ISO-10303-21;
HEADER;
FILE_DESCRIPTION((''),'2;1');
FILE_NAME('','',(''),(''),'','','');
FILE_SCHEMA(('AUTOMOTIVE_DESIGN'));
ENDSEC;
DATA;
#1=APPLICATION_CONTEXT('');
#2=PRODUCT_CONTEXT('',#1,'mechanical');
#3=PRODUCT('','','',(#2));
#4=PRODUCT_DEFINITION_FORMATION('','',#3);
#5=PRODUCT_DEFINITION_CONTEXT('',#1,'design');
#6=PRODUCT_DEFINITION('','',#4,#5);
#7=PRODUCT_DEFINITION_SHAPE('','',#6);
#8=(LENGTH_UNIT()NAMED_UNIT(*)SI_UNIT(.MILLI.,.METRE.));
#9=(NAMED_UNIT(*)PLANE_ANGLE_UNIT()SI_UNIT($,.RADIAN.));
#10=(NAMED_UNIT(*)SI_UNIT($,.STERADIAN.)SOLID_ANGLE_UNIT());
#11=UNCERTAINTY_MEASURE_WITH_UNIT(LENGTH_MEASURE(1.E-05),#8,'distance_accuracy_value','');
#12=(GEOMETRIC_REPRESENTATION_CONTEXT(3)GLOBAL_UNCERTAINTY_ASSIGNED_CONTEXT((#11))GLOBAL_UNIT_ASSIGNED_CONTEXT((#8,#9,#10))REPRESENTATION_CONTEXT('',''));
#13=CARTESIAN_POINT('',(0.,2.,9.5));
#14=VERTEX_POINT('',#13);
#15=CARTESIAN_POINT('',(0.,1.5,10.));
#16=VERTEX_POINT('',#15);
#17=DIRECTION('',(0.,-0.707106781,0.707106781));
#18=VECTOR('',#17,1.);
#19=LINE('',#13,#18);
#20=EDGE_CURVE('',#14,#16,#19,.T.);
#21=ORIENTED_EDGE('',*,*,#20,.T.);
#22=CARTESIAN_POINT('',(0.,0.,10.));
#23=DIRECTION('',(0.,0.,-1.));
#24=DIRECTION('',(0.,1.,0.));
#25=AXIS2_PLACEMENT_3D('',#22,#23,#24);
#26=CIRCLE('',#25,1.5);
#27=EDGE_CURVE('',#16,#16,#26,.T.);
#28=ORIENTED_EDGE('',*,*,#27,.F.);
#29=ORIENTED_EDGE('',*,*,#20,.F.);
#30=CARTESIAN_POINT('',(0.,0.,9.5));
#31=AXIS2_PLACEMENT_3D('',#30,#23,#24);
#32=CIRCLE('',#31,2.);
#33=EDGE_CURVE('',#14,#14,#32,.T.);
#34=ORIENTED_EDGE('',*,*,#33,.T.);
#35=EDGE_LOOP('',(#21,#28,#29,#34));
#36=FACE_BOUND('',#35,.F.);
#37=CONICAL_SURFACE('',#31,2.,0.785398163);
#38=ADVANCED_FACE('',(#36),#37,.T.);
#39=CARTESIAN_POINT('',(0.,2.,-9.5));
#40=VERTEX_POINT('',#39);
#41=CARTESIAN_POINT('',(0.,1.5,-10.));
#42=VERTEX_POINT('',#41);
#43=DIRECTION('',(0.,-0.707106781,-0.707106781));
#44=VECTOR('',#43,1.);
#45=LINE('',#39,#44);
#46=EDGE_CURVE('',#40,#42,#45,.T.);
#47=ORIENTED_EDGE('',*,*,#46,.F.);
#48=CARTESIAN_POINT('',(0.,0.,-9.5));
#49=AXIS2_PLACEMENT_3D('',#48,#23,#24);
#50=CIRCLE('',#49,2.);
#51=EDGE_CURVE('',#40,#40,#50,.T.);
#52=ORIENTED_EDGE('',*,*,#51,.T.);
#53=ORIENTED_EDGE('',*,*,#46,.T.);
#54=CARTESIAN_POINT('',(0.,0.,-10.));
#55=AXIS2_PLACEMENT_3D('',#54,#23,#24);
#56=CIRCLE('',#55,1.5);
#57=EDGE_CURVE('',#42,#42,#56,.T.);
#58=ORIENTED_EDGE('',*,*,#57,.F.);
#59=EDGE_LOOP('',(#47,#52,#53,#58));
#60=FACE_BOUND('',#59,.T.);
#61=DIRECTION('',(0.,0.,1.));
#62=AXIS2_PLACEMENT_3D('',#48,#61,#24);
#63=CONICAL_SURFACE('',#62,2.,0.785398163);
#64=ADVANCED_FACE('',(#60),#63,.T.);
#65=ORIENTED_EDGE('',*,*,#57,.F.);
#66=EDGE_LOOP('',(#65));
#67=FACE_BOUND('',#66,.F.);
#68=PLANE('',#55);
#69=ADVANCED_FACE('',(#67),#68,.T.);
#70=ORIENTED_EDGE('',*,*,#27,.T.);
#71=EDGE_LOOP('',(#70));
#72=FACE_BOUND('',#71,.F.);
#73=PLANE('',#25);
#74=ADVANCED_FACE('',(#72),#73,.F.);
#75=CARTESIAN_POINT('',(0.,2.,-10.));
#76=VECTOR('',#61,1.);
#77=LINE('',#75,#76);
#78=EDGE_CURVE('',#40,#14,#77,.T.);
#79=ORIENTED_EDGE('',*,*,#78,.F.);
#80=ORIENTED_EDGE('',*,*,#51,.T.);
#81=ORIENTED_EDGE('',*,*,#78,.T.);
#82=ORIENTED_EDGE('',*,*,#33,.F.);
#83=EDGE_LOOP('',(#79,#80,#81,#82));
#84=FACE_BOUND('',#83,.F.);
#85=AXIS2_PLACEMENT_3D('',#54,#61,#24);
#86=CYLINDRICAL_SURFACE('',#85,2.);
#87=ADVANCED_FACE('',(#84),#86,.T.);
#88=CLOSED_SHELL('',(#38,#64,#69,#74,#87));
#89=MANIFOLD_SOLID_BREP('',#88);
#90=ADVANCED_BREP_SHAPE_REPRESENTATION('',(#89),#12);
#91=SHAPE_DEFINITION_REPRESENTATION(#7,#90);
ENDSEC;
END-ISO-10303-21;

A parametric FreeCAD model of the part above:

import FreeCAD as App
import Part
import Sketcher
from FreeCAD import Vector


def edges_at(feature, points):
    """Names of the edges that pass closest to the given points."""
    edges = feature.Shape.Edges
    near = lambda p: min(range(len(edges)), key=lambda i: edges[i].distToShape(Part.Vertex(*p))[0])
    return sorted({f"Edge{near(p) + 1}" for p in points})

doc = App.newDocument("Part")
params = doc.addObject("Spreadsheet::Sheet", "Params")
for row, (alias, value) in enumerate([
    ("sketch1_height", "20 mm"),
    ("sketch1_width", "2 mm"),
    ("revolution_angle", "360 deg"),
    ("chamfer_size", "0.5 mm"),
], start=1):
    params.set(f"A{row}", alias)
    params.set(f"B{row}", "=" + value)
    params.setAlias(f"B{row}", alias)

body = doc.addObject("PartDesign::Body", "Body")

# Sketch on YZ plane
sketch1 = body.newObject("Sketcher::SketchObject", "Sketch")
sketch1.AttachmentSupport = (doc.getObject("YZ_Plane"), [""])
sketch1.MapMode = "FlatFace"
sketch1.addGeometry([
    Part.LineSegment(Vector(2, -10, 0), Vector(2, 10, 0)),
    Part.LineSegment(Vector(2, 10, 0), Vector(0, 10, 0)),
    Part.LineSegment(Vector(0, 10, 0), Vector(0, -10, 0)),
    Part.LineSegment(Vector(0, -10, 0), Vector(2, -10, 0)),
], False)
sketch1.addConstraint([
    Sketcher.Constraint("Coincident", 0, 2, 1, 1),
    Sketcher.Constraint("Coincident", 1, 2, 2, 1),
    Sketcher.Constraint("Coincident", 2, 2, 3, 1),
    Sketcher.Constraint("Coincident", 3, 2, 0, 1),
    Sketcher.Constraint("Vertical", 0),
    Sketcher.Constraint("Horizontal", 1),
    Sketcher.Constraint("Vertical", 2),
    Sketcher.Constraint("Horizontal", 3),
    Sketcher.Constraint("Symmetric", 1, 2, 2, 2, -1, 1),
    Sketcher.Constraint("DistanceY", 0, 1, 0, 2, 20.0),
    Sketcher.Constraint("DistanceX", 1, 2, 1, 1, 2.0),
])
sketch1.setExpression("Constraints[9]", "Params.sketch1_height")
sketch1.setExpression("Constraints[10]", "Params.sketch1_width")
revolution = body.newObject("PartDesign::Revolution", "Revolution")
revolution.Profile = sketch1
revolution.ReferenceAxis = (sketch1, ["V_Axis"])
revolution.setExpression("Angle", "Params.revolution_angle")
doc.recompute()

chamfer = body.newObject("PartDesign::Chamfer", "Chamfer")
chamfer.Base = (revolution, edges_at(revolution, [(0, -2, 10), (0, -2, -10)]))
chamfer.setExpression("Size", "Params.chamfer_size")

doc.recompute()
